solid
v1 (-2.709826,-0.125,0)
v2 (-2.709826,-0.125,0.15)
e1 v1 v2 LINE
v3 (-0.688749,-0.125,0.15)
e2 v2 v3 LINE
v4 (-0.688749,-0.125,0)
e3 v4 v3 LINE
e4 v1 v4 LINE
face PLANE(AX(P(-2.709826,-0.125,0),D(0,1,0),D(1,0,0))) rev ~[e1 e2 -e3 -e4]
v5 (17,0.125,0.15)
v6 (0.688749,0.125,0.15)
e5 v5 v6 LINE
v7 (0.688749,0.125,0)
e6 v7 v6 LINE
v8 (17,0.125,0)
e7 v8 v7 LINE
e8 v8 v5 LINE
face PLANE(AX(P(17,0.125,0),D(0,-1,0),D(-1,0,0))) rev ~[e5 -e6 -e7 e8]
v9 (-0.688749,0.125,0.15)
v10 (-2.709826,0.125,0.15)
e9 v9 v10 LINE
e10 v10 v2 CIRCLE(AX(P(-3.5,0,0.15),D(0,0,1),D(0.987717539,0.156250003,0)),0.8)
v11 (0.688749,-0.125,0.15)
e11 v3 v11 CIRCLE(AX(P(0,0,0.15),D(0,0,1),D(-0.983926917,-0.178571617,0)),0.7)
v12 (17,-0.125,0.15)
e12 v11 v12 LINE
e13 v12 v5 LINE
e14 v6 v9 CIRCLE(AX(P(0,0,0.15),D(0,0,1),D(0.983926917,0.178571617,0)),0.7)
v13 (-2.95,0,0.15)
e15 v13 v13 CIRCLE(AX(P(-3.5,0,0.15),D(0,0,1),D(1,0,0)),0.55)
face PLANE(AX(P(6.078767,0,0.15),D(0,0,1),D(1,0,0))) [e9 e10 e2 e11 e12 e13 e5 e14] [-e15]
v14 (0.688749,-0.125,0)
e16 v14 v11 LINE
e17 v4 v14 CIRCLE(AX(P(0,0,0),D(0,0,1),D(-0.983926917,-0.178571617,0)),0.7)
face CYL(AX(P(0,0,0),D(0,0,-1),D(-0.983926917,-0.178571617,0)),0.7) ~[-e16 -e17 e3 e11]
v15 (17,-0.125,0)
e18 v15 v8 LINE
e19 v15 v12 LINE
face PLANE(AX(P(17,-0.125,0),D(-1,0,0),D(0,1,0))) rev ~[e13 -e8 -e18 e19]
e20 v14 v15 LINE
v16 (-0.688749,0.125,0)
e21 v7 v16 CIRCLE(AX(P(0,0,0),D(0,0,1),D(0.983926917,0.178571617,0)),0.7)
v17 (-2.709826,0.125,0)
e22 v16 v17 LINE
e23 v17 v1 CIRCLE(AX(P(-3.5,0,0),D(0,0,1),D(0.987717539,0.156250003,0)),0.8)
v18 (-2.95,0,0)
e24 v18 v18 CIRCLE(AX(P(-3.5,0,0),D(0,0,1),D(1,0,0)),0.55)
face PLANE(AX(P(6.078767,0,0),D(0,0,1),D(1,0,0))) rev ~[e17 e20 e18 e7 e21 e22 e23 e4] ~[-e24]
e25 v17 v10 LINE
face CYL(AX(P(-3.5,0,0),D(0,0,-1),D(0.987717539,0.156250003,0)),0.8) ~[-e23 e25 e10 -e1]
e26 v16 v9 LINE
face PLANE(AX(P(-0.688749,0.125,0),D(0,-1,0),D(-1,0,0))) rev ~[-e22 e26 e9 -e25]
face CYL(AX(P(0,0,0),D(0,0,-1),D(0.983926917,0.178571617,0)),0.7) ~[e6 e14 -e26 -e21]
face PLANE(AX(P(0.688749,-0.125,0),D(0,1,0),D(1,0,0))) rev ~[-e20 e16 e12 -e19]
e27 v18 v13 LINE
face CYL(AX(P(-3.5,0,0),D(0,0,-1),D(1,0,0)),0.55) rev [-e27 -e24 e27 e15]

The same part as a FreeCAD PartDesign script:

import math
import FreeCAD as App
import Part
import Sketcher

V = App.Vector

doc = App.newDocument("Part")
body = doc.addObject("PartDesign::Body", "Body")

# Sketch on XY plane
sketch1 = body.newObject("Sketcher::SketchObject", "Sketch")
sketch1.AttachmentSupport = (doc.getObject("XY_Plane"), [""])
sketch1.MapMode = "FlatFace"
sketch1.addGeometry(Part.LineSegment(V(-2.71, -0.12, 0), V(-0.69, -0.12, 0)), False)
sketch1.addGeometry(Part.ArcOfCircle(Part.Circle(V(0, 0, 0), V(0, 0, 1), 0.7), math.radians(-170), math.radians(-10)), False)
sketch1.addGeometry(Part.LineSegment(V(0.69, -0.12, 0), V(17, -0.12, 0)), False)
sketch1.addGeometry(Part.LineSegment(V(17, -0.12, 0), V(17, 0.12, 0)), False)
sketch1.addGeometry(Part.LineSegment(V(17, 0.12, 0), V(0.69, 0.12, 0)), False)
sketch1.addGeometry(Part.ArcOfCircle(Part.Circle(V(0, 0, 0), V(0, 0, 1), 0.7), math.radians(10), math.radians(170)), False)
sketch1.addGeometry(Part.LineSegment(V(-0.69, 0.12, 0), V(-2.71, 0.12, 0)), False)
sketch1.addGeometry(Part.ArcOfCircle(Part.Circle(V(-3.5, 0, 0), V(0, 0, 1), 0.8), math.radians(9), math.radians(351)), False)
sketch1.addGeometry(Part.Circle(V(-3.5, 0, 0), V(0, 0, 1), 0.55), False)
sketch1.addConstraint(Sketcher.Constraint("Coincident", 0, 2, 1, 1))
sketch1.addConstraint(Sketcher.Constraint("Coincident", 1, 2, 2, 1))
sketch1.addConstraint(Sketcher.Constraint("Coincident", 2, 2, 3, 1))
sketch1.addConstraint(Sketcher.Constraint("Coincident", 3, 2, 4, 1))
sketch1.addConstraint(Sketcher.Constraint("Coincident", 4, 2, 5, 1))
sketch1.addConstraint(Sketcher.Constraint("Coincident", 5, 2, 6, 1))
sketch1.addConstraint(Sketcher.Constraint("Coincident", 6, 2, 7, 1))
sketch1.addConstraint(Sketcher.Constraint("Coincident", 7, 2, 0, 1))
sketch1.addConstraint(Sketcher.Constraint("Horizontal", 0))
sketch1.addConstraint(Sketcher.Constraint("Horizontal", 2))
sketch1.addConstraint(Sketcher.Constraint("Vertical", 3))
sketch1.addConstraint(Sketcher.Constraint("Horizontal", 4))
sketch1.addConstraint(Sketcher.Constraint("Horizontal", 6))
sketch1.addConstraint(Sketcher.Constraint("Coincident", 1, 3, -1, 1))
sketch1.addConstraint(Sketcher.Constraint("Coincident", 5, 3, -1, 1))
sketch1.addConstraint(Sketcher.Constraint("Coincident", 8, 3, 7, 3))
sketch1.addConstraint(Sketcher.Constraint("Equal", 1, 5))
sketch1.addConstraint(Sketcher.Constraint("Symmetric", 6, 2, 7, 2, -1))
sketch1.addConstraint(Sketcher.Constraint("Horizontal", 0, 2, 1, 2))
sketch1.addConstraint(Sketcher.Constraint("Horizontal", 4, 2, 5, 2))
sketch1.addConstraint(Sketcher.Constraint("Diameter", 8, 1.1))
sketch1.addConstraint(Sketcher.Constraint("Radius", 1, 0.7))
sketch1.addConstraint(Sketcher.Constraint("Radius", 7, 0.8))
sketch1.addConstraint(Sketcher.Constraint("DistanceX", -1, 1, 2, 2, 17.0))
sketch1.addConstraint(Sketcher.Constraint("DistanceY", 3, 1, 3, 2, 0.25))
sketch1.addConstraint(Sketcher.Constraint("DistanceX", 7, 3, -1, 1, 3.5))
pad1 = body.newObject("PartDesign::Pad", "Pad")
pad1.Profile = sketch1
pad1.Length = 0.15

doc.recompute()
